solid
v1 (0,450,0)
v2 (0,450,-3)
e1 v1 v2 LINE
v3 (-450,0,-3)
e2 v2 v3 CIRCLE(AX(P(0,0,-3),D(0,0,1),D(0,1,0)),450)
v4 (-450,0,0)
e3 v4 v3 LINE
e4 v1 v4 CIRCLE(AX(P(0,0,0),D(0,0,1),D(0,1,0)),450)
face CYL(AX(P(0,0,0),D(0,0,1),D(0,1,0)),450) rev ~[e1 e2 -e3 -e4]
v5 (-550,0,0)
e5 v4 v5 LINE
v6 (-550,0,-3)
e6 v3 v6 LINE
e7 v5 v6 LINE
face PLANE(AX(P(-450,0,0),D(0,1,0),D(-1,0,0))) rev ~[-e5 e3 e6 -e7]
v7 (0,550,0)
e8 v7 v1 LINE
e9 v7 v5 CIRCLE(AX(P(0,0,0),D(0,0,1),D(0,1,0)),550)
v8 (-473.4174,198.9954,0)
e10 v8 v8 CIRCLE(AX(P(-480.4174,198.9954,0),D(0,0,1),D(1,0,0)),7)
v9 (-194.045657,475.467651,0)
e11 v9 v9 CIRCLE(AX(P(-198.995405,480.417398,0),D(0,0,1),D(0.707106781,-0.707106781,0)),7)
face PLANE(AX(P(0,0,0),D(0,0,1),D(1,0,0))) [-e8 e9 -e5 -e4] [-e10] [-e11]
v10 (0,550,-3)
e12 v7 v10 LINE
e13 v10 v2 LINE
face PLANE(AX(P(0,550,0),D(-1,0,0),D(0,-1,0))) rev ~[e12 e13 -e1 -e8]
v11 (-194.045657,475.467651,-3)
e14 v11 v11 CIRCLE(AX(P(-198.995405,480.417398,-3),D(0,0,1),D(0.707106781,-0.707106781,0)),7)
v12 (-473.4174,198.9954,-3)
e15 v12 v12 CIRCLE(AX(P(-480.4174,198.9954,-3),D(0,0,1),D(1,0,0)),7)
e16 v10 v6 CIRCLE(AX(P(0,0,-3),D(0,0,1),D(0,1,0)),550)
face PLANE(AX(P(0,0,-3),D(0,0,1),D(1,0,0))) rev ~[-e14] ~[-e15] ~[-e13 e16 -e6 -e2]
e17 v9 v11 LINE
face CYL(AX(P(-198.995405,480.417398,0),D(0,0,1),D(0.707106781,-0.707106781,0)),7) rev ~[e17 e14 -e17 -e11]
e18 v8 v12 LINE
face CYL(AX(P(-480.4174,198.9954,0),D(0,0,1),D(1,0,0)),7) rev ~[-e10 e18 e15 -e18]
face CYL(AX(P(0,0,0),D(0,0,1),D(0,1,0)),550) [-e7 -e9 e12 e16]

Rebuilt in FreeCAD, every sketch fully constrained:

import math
import FreeCAD as App
import Part
import Sketcher
Q = App.Units.Quantity

doc = App.newDocument("Part")
params = doc.addObject("Spreadsheet::Sheet", "Params")
for row, (alias, value) in enumerate([
    ("sketch1_radius", "550 mm"),
    ("sketch1_radius2", "450 mm"),
    ("pad1_length", "3 mm"),
    ("sketch2_diameter", "14 mm"),
], start=1):
    params.set(f"A{row}", alias)
    params.set(f"B{row}", "=" + value)
    params.setAlias(f"B{row}", alias)

body = doc.addObject("PartDesign::Body", "Body")

# Sketch on XY plane
sketch1 = body.newObject("Sketcher::SketchObject", "Sketch")
sketch1.AttachmentSupport = (doc.getObject("XY_Plane"), [""])
sketch1.MapMode = "FlatFace"
sketch1.addGeometry(Part.LineSegment(App.Vector(0, 450, 0), App.Vector(0, 550, 0)), False)
sketch1.addGeometry(Part.ArcOfCircle(Part.Circle(App.Vector(0, 0, 0), App.Vector(0, 0, 1), 550), math.radians(90), math.radians(180)), False)
sketch1.addGeometry(Part.LineSegment(App.Vector(-550, 0, 0), App.Vector(-450, 0, 0)), False)
sketch1.addGeometry(Part.ArcOfCircle(Part.Circle(App.Vector(0, 0, 0), App.Vector(0, 0, 1), 450), math.radians(90), math.radians(180)), False)
sketch1.addConstraint(Sketcher.Constraint("Coincident", 0, 2, 1, 1))
sketch1.addConstraint(Sketcher.Constraint("Coincident", 1, 2, 2, 1))
sketch1.addConstraint(Sketcher.Constraint("Coincident", 2, 2, 3, 2))
sketch1.addConstraint(Sketcher.Constraint("Coincident", 3, 1, 0, 1))
sketch1.addConstraint(Sketcher.Constraint("Vertical", 0))
sketch1.addConstraint(Sketcher.Constraint("Horizontal", 2))
sketch1.addConstraint(Sketcher.Constraint("Coincident", 1, 3, -1, 1))
sketch1.addConstraint(Sketcher.Constraint("Coincident", 3, 3, -1, 1))
sketch1.addConstraint(Sketcher.Constraint("PointOnObject", 0, 2, -2))
sketch1.addConstraint(Sketcher.Constraint("PointOnObject", 2, 2, -1))
sketch1.addConstraint(Sketcher.Constraint("Radius", 1, Q("550 mm")))
sketch1.addConstraint(Sketcher.Constraint("Radius", 3, Q("450 mm")))
sketch1.setExpression("Constraints[10]", "Params.sketch1_radius")
sketch1.setExpression("Constraints[11]", "Params.sketch1_radius2")
pad1 = body.newObject("PartDesign::Pad", "Pad")
pad1.Profile = sketch1
pad1.setExpression("Length", "Params.pad1_length")
pad1.Reversed = True

# Sketch on XY plane
sketch2 = body.newObject("Sketcher::SketchObject", "Sketch001")
sketch2.AttachmentSupport = (doc.getObject("XY_Plane"), [""])
sketch2.MapMode = "FlatFace"
sketch2.addGeometry(Part.Circle(App.Vector(-480.4174, 198.9954, 0), App.Vector(0, 0, 1), 7), False)
sketch2.addConstraint(Sketcher.Constraint("Diameter", 0, Q("14 mm")))
sketch2.addConstraint(Sketcher.Constraint("DistanceX", 0, 3, -1, 1, Q("480.4174 mm")))
sketch2.addConstraint(Sketcher.Constraint("DistanceY", -1, 1, 0, 3, Q("198.9954 mm")))
sketch2.setExpression("Constraints[0]", "Params.sketch2_diameter")
pocket1 = body.newObject("PartDesign::Pocket", "Pocket")
pocket1.Profile = sketch2
pocket1.Type = "ThroughAll"
doc.recompute()

polarpattern = body.newObject("PartDesign::PolarPattern", "PolarPattern")
polarpattern.Originals = [pocket1]
polarpattern.Axis = (doc.getObject("Z_Axis"), [""])
polarpattern.Angle = 45
polarpattern.Occurrences = 2
polarpattern.Reversed = True
body.Tip = polarpattern

doc.recompute()
